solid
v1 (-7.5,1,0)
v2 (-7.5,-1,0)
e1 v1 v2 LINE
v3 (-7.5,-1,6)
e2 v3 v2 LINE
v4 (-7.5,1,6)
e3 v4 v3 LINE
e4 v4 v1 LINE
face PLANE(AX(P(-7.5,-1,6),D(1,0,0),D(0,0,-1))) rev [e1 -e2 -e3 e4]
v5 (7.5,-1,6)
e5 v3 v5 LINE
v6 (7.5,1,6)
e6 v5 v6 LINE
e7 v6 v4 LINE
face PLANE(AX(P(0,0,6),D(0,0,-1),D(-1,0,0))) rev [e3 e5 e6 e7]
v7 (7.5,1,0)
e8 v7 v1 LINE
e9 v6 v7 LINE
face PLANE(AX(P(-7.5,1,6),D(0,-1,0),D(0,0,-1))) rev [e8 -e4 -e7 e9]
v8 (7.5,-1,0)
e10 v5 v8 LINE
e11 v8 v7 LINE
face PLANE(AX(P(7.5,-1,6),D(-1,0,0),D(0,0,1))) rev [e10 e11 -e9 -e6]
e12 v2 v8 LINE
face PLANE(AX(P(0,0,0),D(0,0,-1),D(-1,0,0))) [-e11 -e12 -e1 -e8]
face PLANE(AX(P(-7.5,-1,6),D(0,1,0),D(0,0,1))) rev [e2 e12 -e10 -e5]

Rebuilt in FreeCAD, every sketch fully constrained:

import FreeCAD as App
import Part
import Sketcher
Q = App.Units.Quantity

doc = App.newDocument("Part")
params = doc.addObject("Spreadsheet::Sheet", "Params")
for row, (alias, value) in enumerate([
    ("sketch1_width", "15 mm"),
    ("sketch1_height", "2 mm"),
    ("pad1_length", "6 mm"),
], start=1):
    params.set(f"A{row}", alias)
    params.set(f"B{row}", "=" + value)
    params.setAlias(f"B{row}", alias)

body = doc.addObject("PartDesign::Body", "Body")

sketch1 = body.newObject("Sketcher::SketchObject", "Sketch")
sketch1.AttachmentSupport = (doc.getObject("XY_Plane"), [""])
sketch1.MapMode = "FlatFace"
sketch1.addGeometry(Part.LineSegment(App.Vector(-7.5, 1, 0), App.Vector(-7.5, -1, 0)), False)
sketch1.addGeometry(Part.LineSegment(App.Vector(-7.5, -1, 0), App.Vector(7.5, -1, 0)), False)
sketch1.addGeometry(Part.LineSegment(App.Vector(7.5, -1, 0), App.Vector(7.5, 1, 0)), False)
sketch1.addGeometry(Part.LineSegment(App.Vector(7.5, 1, 0), App.Vector(-7.5, 1, 0)), False)
sketch1.addConstraint(Sketcher.Constraint("Coincident", 0, 2, 1, 1))
sketch1.addConstraint(Sketcher.Constraint("Coincident", 1, 2, 2, 1))
sketch1.addConstraint(Sketcher.Constraint("Coincident", 2, 2, 3, 1))
sketch1.addConstraint(Sketcher.Constraint("Coincident", 3, 2, 0, 1))
sketch1.addConstraint(Sketcher.Constraint("Vertical", 0))
sketch1.addConstraint(Sketcher.Constraint("Horizontal", 1))
sketch1.addConstraint(Sketcher.Constraint("Vertical", 2))
sketch1.addConstraint(Sketcher.Constraint("Horizontal", 3))
sketch1.addConstraint(Sketcher.Constraint("Symmetric", 0, 2, 2, 2, -1, 1))
sketch1.addConstraint(Sketcher.Constraint("DistanceX", 1, 1, 1, 2, Q("15 mm")))
sketch1.addConstraint(Sketcher.Constraint("DistanceY", 0, 2, 0, 1, Q("2 mm")))
sketch1.setExpression("Constraints[9]", "Params.sketch1_width")
sketch1.setExpression("Constraints[10]", "Params.sketch1_height")
pad1 = body.newObject("PartDesign::Pad", "Pad")
pad1.Profile = sketch1
pad1.setExpression("Length", "Params.pad1_length")

doc.recompute()
